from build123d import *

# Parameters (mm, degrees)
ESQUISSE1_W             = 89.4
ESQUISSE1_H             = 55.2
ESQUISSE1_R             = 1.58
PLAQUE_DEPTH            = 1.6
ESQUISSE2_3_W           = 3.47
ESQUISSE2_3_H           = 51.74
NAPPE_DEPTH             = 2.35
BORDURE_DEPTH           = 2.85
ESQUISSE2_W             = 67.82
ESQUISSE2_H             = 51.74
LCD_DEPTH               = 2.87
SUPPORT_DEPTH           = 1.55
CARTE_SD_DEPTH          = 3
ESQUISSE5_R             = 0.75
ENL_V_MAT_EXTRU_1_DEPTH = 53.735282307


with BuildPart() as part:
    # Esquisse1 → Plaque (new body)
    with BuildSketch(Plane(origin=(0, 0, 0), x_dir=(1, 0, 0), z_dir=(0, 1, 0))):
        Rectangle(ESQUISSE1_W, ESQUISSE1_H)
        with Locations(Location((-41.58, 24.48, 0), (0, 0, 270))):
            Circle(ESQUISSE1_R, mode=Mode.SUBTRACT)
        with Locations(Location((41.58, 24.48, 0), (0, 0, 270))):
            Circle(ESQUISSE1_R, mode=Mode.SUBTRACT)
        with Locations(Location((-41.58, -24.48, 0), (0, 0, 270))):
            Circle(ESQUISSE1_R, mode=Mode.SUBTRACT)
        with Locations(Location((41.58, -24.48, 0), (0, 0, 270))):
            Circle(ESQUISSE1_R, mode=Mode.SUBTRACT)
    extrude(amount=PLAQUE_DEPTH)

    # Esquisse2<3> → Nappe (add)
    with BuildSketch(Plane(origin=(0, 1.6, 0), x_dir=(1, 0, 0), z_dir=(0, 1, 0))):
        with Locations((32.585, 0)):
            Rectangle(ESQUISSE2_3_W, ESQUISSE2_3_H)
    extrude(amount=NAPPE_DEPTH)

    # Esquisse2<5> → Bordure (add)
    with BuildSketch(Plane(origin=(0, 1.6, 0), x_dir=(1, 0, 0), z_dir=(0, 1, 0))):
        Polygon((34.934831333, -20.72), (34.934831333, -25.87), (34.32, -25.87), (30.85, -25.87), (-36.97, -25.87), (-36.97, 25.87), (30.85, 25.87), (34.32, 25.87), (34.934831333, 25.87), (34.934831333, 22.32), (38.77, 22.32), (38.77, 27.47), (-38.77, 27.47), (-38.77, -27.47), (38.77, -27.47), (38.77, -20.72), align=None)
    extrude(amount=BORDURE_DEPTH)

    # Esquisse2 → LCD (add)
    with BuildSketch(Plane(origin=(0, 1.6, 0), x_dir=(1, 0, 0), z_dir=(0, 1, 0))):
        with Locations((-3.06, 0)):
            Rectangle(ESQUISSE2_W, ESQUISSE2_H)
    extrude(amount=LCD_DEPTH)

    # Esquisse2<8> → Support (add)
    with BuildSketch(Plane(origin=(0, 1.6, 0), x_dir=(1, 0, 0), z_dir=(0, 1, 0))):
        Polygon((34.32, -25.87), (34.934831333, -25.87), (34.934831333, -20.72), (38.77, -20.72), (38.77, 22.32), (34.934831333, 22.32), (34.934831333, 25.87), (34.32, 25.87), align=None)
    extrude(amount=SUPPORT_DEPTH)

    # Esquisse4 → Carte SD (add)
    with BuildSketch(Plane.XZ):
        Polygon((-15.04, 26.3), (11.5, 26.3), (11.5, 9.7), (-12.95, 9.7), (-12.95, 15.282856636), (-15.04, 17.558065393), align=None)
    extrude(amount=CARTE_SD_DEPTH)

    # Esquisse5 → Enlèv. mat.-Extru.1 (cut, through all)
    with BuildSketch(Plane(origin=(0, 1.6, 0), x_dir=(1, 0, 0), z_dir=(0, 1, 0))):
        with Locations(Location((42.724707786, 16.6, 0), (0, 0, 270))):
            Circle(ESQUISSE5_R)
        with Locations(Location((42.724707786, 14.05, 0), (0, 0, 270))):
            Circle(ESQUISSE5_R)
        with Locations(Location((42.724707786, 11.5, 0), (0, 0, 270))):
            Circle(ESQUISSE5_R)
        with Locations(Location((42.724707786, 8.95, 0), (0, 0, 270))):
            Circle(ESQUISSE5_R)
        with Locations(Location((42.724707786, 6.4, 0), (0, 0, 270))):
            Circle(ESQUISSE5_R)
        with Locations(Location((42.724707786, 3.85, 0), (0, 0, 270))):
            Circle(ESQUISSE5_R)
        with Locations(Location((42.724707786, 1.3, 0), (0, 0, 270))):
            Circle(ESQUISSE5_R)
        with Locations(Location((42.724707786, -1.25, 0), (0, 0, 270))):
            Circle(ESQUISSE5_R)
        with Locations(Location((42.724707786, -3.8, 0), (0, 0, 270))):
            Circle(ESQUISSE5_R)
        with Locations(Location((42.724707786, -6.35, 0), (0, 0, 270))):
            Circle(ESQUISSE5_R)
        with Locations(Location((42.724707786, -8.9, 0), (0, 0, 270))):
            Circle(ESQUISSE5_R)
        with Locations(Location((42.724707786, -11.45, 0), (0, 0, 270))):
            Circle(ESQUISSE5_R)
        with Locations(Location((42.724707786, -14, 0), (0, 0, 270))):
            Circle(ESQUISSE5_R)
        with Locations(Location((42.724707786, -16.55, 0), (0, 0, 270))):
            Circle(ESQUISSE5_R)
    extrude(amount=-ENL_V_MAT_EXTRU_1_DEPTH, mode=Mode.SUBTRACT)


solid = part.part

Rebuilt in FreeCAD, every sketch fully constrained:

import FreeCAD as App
import Part
import Sketcher
from FreeCAD import Vector
Q = App.Units.Quantity


def add_polygon(sketch, points):
    """Adds a closed chain of lines whose ends are joined by coincident constraints."""
    first, n = sketch.GeometryCount, len(points)
    for a, b in zip(points, points[1:] + points[:1]):
        sketch.addGeometry(Part.LineSegment(App.Vector(*a, 0), App.Vector(*b, 0)), False)
    for i in range(n):
        sketch.addConstraint(Sketcher.Constraint("Coincident", first + i, 2, first + (i + 1) % n, 1))

doc = App.newDocument("Part")
params = doc.addObject("Spreadsheet::Sheet", "Params")
for row, (alias, value) in enumerate([
    ("sketch1_diameter", "3.16 mm"),
    ("sketch1_width", "89.4 mm"),
    ("sketch1_height", "55.2 mm"),
    ("pad1_length", "1.6 mm"),
    ("sketch2_width", "3.47 mm"),
    ("sketch2_height", "51.74 mm"),
    ("pad2_length", "2.35 mm"),
    ("sketch3_width", "77.54 mm"),
    ("sketch3_height", "5.15 mm"),
    ("sketch3_height2", "51.74 mm"),
    ("sketch3_height3", "3.55 mm"),
    ("pad3_length", "2.85 mm"),
    ("sketch4_width", "67.82 mm"),
    ("sketch4_height", "51.74 mm"),
    ("pad4_length", "2.87 mm"),
    ("sketch5_height", "5.15 mm"),
    ("sketch5_height2", "43.04 mm"),
    ("sketch5_height3", "3.55 mm"),
    ("pad5_length", "1.55 mm"),
    ("sketch6_height", "16.6 mm"),
    ("sketch6_width", "26.54 mm"),
    ("sketch6_width2", "24.45 mm"),
    ("pad6_length", "3 mm"),
    ("sketch7_diameter", "1.5 mm"),
], start=1):
    params.set(f"A{row}", alias)
    params.set(f"B{row}", "=" + value)
    params.setAlias(f"B{row}", alias)

body = doc.addObject("PartDesign::Body", "Body")

# Sketch on XZ plane
sketch1 = doc.addObject("Sketcher::SketchObject", "Sketch")
body.addObject(sketch1)
sketch1.AttachmentSupport = (doc.XZ_Plane, [""])
sketch1.MapMode = "FlatFace"
add_polygon(sketch1, [(-44.7, -27.6), (-44.7, 27.6), (44.7, 27.6), (44.7, -27.6)])  # lines 0-3
sketch1.addGeometry(Part.Circle(Vector(-41.6, 24.5, 0), Vector(0, 0, 1), 1.6), False)  # 4
sketch1.addGeometry(Part.Circle(Vector(41.6, 24.5, 0), Vector(0, 0, 1), 1.6), False)  # 5
sketch1.addGeometry(Part.Circle(Vector(-41.6, -24.5, 0), Vector(0, 0, 1), 1.6), False)  # 6
sketch1.addGeometry(Part.Circle(Vector(41.6, -24.5, 0), Vector(0, 0, 1), 1.6), False)  # 7
sketch1.addConstraint([
    Sketcher.Constraint("Vertical", 0),
    Sketcher.Constraint("Horizontal", 1),
    Sketcher.Constraint("Vertical", 2),
    Sketcher.Constraint("Horizontal", 3),
    Sketcher.Constraint("Equal", 4, 5),
    Sketcher.Constraint("Equal", 5, 6),
    Sketcher.Constraint("Equal", 6, 7),
    Sketcher.Constraint("Symmetric", 5, 3, 6, 3, -1, 1),
    Sketcher.Constraint("Symmetric", 4, 3, 7, 3, -1, 1),
    Sketcher.Constraint("Symmetric", 0, 2, 2, 2, -1, 1),
    Sketcher.Constraint("Symmetric", 4, 3, 5, 3, -2),
    Sketcher.Constraint("Diameter", 4, Q("3.16 mm")),
    Sketcher.Constraint("DistanceX", 1, 1, 1, 2, Q("89.4 mm")),
    Sketcher.Constraint("DistanceY", 0, 1, 0, 2, Q("55.2 mm")),
    Sketcher.Constraint("DistanceX", 4, 3, -1, 1, Q("41.58 mm")),
    Sketcher.Constraint("DistanceY", -1, 1, 4, 3, Q("24.48 mm")),
])
sketch1.setExpression("Constraints[15]", "Params.sketch1_diameter")
sketch1.setExpression("Constraints[16]", "Params.sketch1_width")
sketch1.setExpression("Constraints[17]", "Params.sketch1_height")
pad1 = doc.addObject("PartDesign::Pad", "Pad")
body.addObject(pad1)
pad1.Profile = sketch1
pad1.setExpression("Length", "Params.pad1_length")
pad1.Reversed = True

# Sketch on XZ plane
sketch2 = doc.addObject("Sketcher::SketchObject", "Sketch001")
body.addObject(sketch2)
sketch2.AttachmentSupport = (doc.XZ_Plane, [""])
sketch2.MapMode = "FlatFace"
sketch2.AttachmentOffset = App.Placement(Vector(0, 0, -1.6), App.Rotation())
add_polygon(sketch2, [(30.9, -25.9), (30.9, 25.9), (34.3, 25.9), (34.3, -25.9)])  # lines 0-3
sketch2.addConstraint([
    Sketcher.Constraint("Vertical", 0),
    Sketcher.Constraint("Horizontal", 1),
    Sketcher.Constraint("Vertical", 2),
    Sketcher.Constraint("Horizontal", 3),
    Sketcher.Constraint("DistanceX", 1, 1, 1, 2, Q("3.47 mm")),
    Sketcher.Constraint("DistanceY", 0, 1, 0, 2, Q("51.74 mm")),
    Sketcher.Constraint("DistanceX", -1, 1, 0, 2, Q("30.85 mm")),
    Sketcher.Constraint("DistanceY", -1, 1, 0, 2, Q("25.87 mm")),
])
sketch2.setExpression("Constraints[8]", "Params.sketch2_width")
sketch2.setExpression("Constraints[9]", "Params.sketch2_height")
pad2 = doc.addObject("PartDesign::Pad", "Pad001")
body.addObject(pad2)
pad2.Profile = sketch2
pad2.setExpression("Length", "Params.pad2_length")
pad2.Reversed = True

# Sketch on XZ plane
sketch3 = doc.addObject("Sketcher::SketchObject", "Sketch002")
body.addObject(sketch3)
sketch3.AttachmentSupport = (doc.XZ_Plane, [""])
sketch3.MapMode = "FlatFace"
sketch3.AttachmentOffset = App.Placement(Vector(0, 0, -1.6), App.Rotation())
add_polygon(sketch3, [(34.9, 20.7), (34.9, 25.9), (-37, 25.9), (-37, -25.9), (34.9, -25.9), (34.9, -22.3), (38.8, -22.3), (38.8, -27.5), (-38.8, -27.5), (-38.8, 27.5), (38.8, 27.5), (38.8, 20.7)])  # lines 0-11
sketch3.addConstraint([
    Sketcher.Constraint("Vertical", 0),
    Sketcher.Constraint("Horizontal", 1),
    Sketcher.Constraint("Vertical", 2),
    Sketcher.Constraint("Horizontal", 3),
    Sketcher.Constraint("Vertical", 4),
    Sketcher.Constraint("Horizontal", 5),
    Sketcher.Constraint("Vertical", 6),
    Sketcher.Constraint("Horizontal", 7),
    Sketcher.Constraint("Vertical", 8),
    Sketcher.Constraint("Horizontal", 9),
    Sketcher.Constraint("Vertical", 10),
    Sketcher.Constraint("Horizontal", 11),
    Sketcher.Constraint("Symmetric", 6, 2, 8, 2, -1, 1),
    Sketcher.Constraint("Symmetric", 0, 2, 3, 2, -1),
    Sketcher.Constraint("Vertical", 6, 2, 9, 2),
    Sketcher.Constraint("Equal", 0, 6),
    Sketcher.Constraint("DistanceX", 7, 2, 7, 1, Q("77.54 mm")),
    Sketcher.Constraint("DistanceY", 0, 1, 0, 2, Q("5.15 mm")),
    Sketcher.Constraint("DistanceY", 2, 2, 2, 1, Q("51.74 mm")),
    Sketcher.Constraint("DistanceY", 4, 1, 4, 2, Q("3.55 mm")),
    Sketcher.Constraint("DistanceX", 7, 2, 2, 2, Q("1.8 mm")),
    Sketcher.Constraint("DistanceX", 1, 2, 1, 1, Q("71.904831 mm")),
])
sketch3.setExpression("Constraints[28]", "Params.sketch3_width")
sketch3.setExpression("Constraints[29]", "Params.sketch3_height")
sketch3.setExpression("Constraints[30]", "Params.sketch3_height2")
sketch3.setExpression("Constraints[31]", "Params.sketch3_height3")
pad3 = doc.addObject("PartDesign::Pad", "Pad002")
body.addObject(pad3)
pad3.Profile = sketch3
pad3.setExpression("Length", "Params.pad3_length")
pad3.Reversed = True

# Sketch on XZ plane
sketch4 = doc.addObject("Sketcher::SketchObject", "Sketch003")
body.addObject(sketch4)
sketch4.AttachmentSupport = (doc.XZ_Plane, [""])
sketch4.MapMode = "FlatFace"
sketch4.AttachmentOffset = App.Placement(Vector(0, 0, -1.6), App.Rotation())
add_polygon(sketch4, [(-37, -26), (-37, 26), (31, 26), (31, -26)])  # lines 0-3
sketch4.addConstraint([
    Sketcher.Constraint("Vertical", 0),
    Sketcher.Constraint("Horizontal", 1),
    Sketcher.Constraint("Vertical", 2),
    Sketcher.Constraint("Horizontal", 3),
    Sketcher.Constraint("DistanceX", 1, 1, 1, 2, Q("67.82 mm")),
    Sketcher.Constraint("DistanceY", 0, 1, 0, 2, Q("51.74 mm")),
    Sketcher.Constraint("DistanceX", 0, 2, -1, 1, Q("36.97 mm")),
    Sketcher.Constraint("DistanceY", -1, 1, 0, 2, Q("25.87 mm")),
])
sketch4.setExpression("Constraints[8]", "Params.sketch4_width")
sketch4.setExpression("Constraints[9]", "Params.sketch4_height")
pad4 = doc.addObject("PartDesign::Pad", "Pad003")
body.addObject(pad4)
pad4.Profile = sketch4
pad4.setExpression("Length", "Params.pad4_length")
pad4.Reversed = True

# Sketch on XZ plane
sketch5 = doc.addObject("Sketcher::SketchObject", "Sketch004")
body.addObject(sketch5)
sketch5.AttachmentSupport = (doc.XZ_Plane, [""])
sketch5.MapMode = "FlatFace"
sketch5.AttachmentOffset = App.Placement(Vector(0, 0, -1.6), App.Rotation())
add_polygon(sketch5, [(34.3, 25.9), (34.9, 25.9), (34.9, 20.7), (38.8, 20.7), (38.8, -22.3), (34.9, -22.3), (34.9, -25.9), (34.3, -25.9)])  # lines 0-7
sketch5.addConstraint([
    Sketcher.Constraint("Horizontal", 0),
    Sketcher.Constraint("Vertical", 1),
    Sketcher.Constraint("Horizontal", 2),
    Sketcher.Constraint("Vertical", 3),
    Sketcher.Constraint("Horizontal", 4),
    Sketcher.Constraint("Vertical", 5),
    Sketcher.Constraint("Horizontal", 6),
    Sketcher.Constraint("Vertical", 7),
    Sketcher.Constraint("Symmetric", 0, 2, 5, 2, -1),
    Sketcher.Constraint("DistanceY", 1, 2, 1, 1, Q("5.15 mm")),
    Sketcher.Constraint("DistanceY", 3, 2, 3, 1, Q("43.04 mm")),
    Sketcher.Constraint("DistanceY", 5, 2, 5, 1, Q("3.55 mm")),
    Sketcher.Constraint("DistanceX", -1, 1, 2, 2, Q("38.77 mm")),
    Sketcher.Constraint("DistanceX", -1, 1, 6, 2, Q("34.32 mm")),
    Sketcher.Constraint("DistanceX", 0, 1, 0, 2, Q("0.614831 mm")),
])
sketch5.setExpression("Constraints[17]", "Params.sketch5_height")
sketch5.setExpression("Constraints[18]", "Params.sketch5_height2")
sketch5.setExpression("Constraints[19]", "Params.sketch5_height3")
pad5 = doc.addObject("PartDesign::Pad", "Pad004")
body.addObject(pad5)
pad5.Profile = sketch5
pad5.setExpression("Length", "Params.pad5_length")
pad5.Reversed = True

# Sketch on XZ plane
sketch6 = doc.addObject("Sketcher::SketchObject", "Sketch005")
body.addObject(sketch6)
sketch6.AttachmentSupport = (doc.XZ_Plane, [""])
sketch6.MapMode = "FlatFace"
add_polygon(sketch6, [(11.5, 26.3), (-15, 26.3), (-15, 17.6), (-12.9, 15.3), (-12.9, 9.7), (11.5, 9.7)])  # lines 0-5
sketch6.addConstraint([
    Sketcher.Constraint("Horizontal", 0),
    Sketcher.Constraint("Vertical", 1),
    Sketcher.Constraint("Vertical", 3),
    Sketcher.Constraint("Horizontal", 4),
    Sketcher.Constraint("Vertical", 5),
    Sketcher.Constraint("DistanceY", 5, 1, 5, 2, Q("16.6 mm")),
    Sketcher.Constraint("DistanceX", 0, 2, 0, 1, Q("26.54 mm")),
    Sketcher.Constraint("DistanceX", 4, 1, 4, 2, Q("24.45 mm")),
    Sketcher.Constraint("DistanceY", -1, 1, 0, 2, Q("26.3 mm")),
    Sketcher.Constraint("DistanceX", -1, 1, 4, 2, Q("11.5 mm")),
    Sketcher.Constraint("DistanceY", 1, 2, 1, 1, Q("8.741935 mm")),
    Sketcher.Constraint("DistanceY", 3, 2, 3, 1, Q("5.582857 mm")),
])
sketch6.setExpression("Constraints[11]", "Params.sketch6_height")
sketch6.setExpression("Constraints[12]", "Params.sketch6_width")
sketch6.setExpression("Constraints[13]", "Params.sketch6_width2")
pad6 = doc.addObject("PartDesign::Pad", "Pad005")
body.addObject(pad6)
pad6.Profile = sketch6
pad6.setExpression("Length", "Params.pad6_length")

# Sketch on XZ plane
sketch7 = doc.addObject("Sketcher::SketchObject", "Sketch006")
body.addObject(sketch7)
sketch7.AttachmentSupport = (doc.XZ_Plane, [""])
sketch7.MapMode = "FlatFace"
sketch7.AttachmentOffset = App.Placement(Vector(0, 0, -1.6), App.Rotation())
sketch7.addGeometry([
    Part.Circle(Vector(42.7, -16.6, 0), Vector(0, 0, 1), 0.8),  # 0
    Part.Circle(Vector(42.7, -14.1, 0), Vector(0, 0, 1), 0.8),  # 1
    Part.Circle(Vector(42.7, -11.5, 0), Vector(0, 0, 1), 0.8),  # 2
    Part.Circle(Vector(42.7, -8.9, 0), Vector(0, 0, 1), 0.8),  # 3
    Part.Circle(Vector(42.7, -6.4, 0), Vector(0, 0, 1), 0.8),  # 4
    Part.Circle(Vector(42.7, -3.9, 0), Vector(0, 0, 1), 0.8),  # 5
    Part.Circle(Vector(42.7, -1.3, 0), Vector(0, 0, 1), 0.8),  # 6
    Part.Circle(Vector(42.7, 1.2, 0), Vector(0, 0, 1), 0.8),  # 7
    Part.Circle(Vector(42.7, 3.8, 0), Vector(0, 0, 1), 0.8),  # 8
    Part.Circle(Vector(42.7, 6.3, 0), Vector(0, 0, 1), 0.8),  # 9
    Part.Circle(Vector(42.7, 8.9, 0), Vector(0, 0, 1), 0.8),  # 10
    Part.Circle(Vector(42.7, 11.4, 0), Vector(0, 0, 1), 0.8),  # 11
    Part.Circle(Vector(42.7, 14, 0), Vector(0, 0, 1), 0.8),  # 12
    Part.Circle(Vector(42.7, 16.6, 0), Vector(0, 0, 1), 0.8),  # 13
], False)
sketch7.addConstraint([
    Sketcher.Constraint("Equal", 0, 1),
    Sketcher.Constraint("Equal", 1, 2),
    Sketcher.Constraint("Equal", 2, 3),
    Sketcher.Constraint("Equal", 3, 4),
    Sketcher.Constraint("Equal", 4, 5),
    Sketcher.Constraint("Equal", 5, 6),
    Sketcher.Constraint("Equal", 6, 7),
    Sketcher.Constraint("Equal", 7, 8),
    Sketcher.Constraint("Equal", 8, 9),
    Sketcher.Constraint("Equal", 9, 10),
    Sketcher.Constraint("Equal", 10, 11),
    Sketcher.Constraint("Equal", 11, 12),
    Sketcher.Constraint("Equal", 12, 13),
    Sketcher.Constraint("Vertical", 0, 3, 1, 3),
    Sketcher.Constraint("Vertical", 1, 3, 2, 3),
    Sketcher.Constraint("Vertical", 2, 3, 3, 3),
    Sketcher.Constraint("Vertical", 3, 3, 4, 3),
    Sketcher.Constraint("Vertical", 4, 3, 5, 3),
    Sketcher.Constraint("Vertical", 5, 3, 6, 3),
    Sketcher.Constraint("Vertical", 6, 3, 7, 3),
    Sketcher.Constraint("Vertical", 7, 3, 8, 3),
    Sketcher.Constraint("Vertical", 8, 3, 9, 3),
    Sketcher.Constraint("Vertical", 9, 3, 10, 3),
    Sketcher.Constraint("Vertical", 10, 3, 11, 3),
    Sketcher.Constraint("Vertical", 11, 3, 12, 3),
    Sketcher.Constraint("Vertical", 12, 3, 13, 3),
    Sketcher.Constraint("Diameter", 0, Q("1.5 mm")),
    Sketcher.Constraint("DistanceY", -1, 1, 12, 3, Q("14 mm")),
    Sketcher.Constraint("DistanceY", 0, 3, -1, 1, Q("16.6 mm")),
    Sketcher.Constraint("DistanceY", 2, 3, -1, 1, Q("11.5 mm")),
    Sketcher.Constraint("DistanceY", 4, 3, -1, 1, Q("6.4 mm")),
    Sketcher.Constraint("DistanceY", 6, 3, -1, 1, Q("1.3 mm")),
    Sketcher.Constraint("DistanceY", -1, 1, 8, 3, Q("3.8 mm")),
    Sketcher.Constraint("DistanceY", -1, 1, 10, 3, Q("8.9 mm")),
    Sketcher.Constraint("DistanceY", 1, 3, 3, 3, Q("5.1 mm")),
    Sketcher.Constraint("DistanceY", 3, 3, 5, 3, Q("5.1 mm")),
    Sketcher.Constraint("DistanceY", 5, 3, 7, 3, Q("5.1 mm")),
    Sketcher.Constraint("DistanceY", 7, 3, 9, 3, Q("5.1 mm")),
    Sketcher.Constraint("DistanceY", 9, 3, 11, 3, Q("5.1 mm")),
    Sketcher.Constraint("DistanceY", 11, 3, 13, 3, Q("5.1 mm")),
    Sketcher.Constraint("DistanceY", 1, 3, -1, 1, Q("14.05 mm")),
    Sketcher.Constraint("DistanceX", -1, 1, 0, 3, Q("42.724708 mm")),
])
sketch7.setExpression("Constraints[26]", "Params.sketch7_diameter")
pocket1 = doc.addObject("PartDesign::Pocket", "Pocket")
body.addObject(pocket1)
pocket1.Profile = sketch7
pocket1.Type = "ThroughAll"
pocket1.Reversed = True

doc.recompute()
